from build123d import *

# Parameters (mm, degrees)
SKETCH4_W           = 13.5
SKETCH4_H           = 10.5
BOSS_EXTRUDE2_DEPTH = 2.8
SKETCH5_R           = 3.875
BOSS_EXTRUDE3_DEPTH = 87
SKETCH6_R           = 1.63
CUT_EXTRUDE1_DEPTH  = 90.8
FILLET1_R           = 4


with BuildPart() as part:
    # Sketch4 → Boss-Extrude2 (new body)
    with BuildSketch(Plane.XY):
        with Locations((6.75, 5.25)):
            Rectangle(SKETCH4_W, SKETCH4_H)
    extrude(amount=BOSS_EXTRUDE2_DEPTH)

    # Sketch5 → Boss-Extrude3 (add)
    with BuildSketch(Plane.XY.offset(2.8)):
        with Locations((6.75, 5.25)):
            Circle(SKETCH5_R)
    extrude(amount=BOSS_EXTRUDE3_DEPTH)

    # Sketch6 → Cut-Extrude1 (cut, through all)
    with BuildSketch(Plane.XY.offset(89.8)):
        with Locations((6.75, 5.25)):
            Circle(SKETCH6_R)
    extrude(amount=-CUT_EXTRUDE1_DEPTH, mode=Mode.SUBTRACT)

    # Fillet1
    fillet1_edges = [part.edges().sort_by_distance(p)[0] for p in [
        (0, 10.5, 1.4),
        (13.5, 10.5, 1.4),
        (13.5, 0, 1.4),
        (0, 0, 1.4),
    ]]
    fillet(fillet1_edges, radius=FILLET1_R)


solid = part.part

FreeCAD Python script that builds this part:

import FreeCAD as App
import Part
import Sketcher


def edges_at(feature, points):
    """Names of the edges that pass closest to the given points."""
    edges = feature.Shape.Edges
    near = lambda p: min(range(len(edges)), key=lambda i: edges[i].distToShape(Part.Vertex(*p))[0])
    return sorted({f"Edge{near(p) + 1}" for p in points})

doc = App.newDocument("Part")
params = doc.addObject("Spreadsheet::Sheet", "Params")
for row, (alias, value) in enumerate([
    ("sketch1_width", "13.5 mm"),
    ("sketch1_height", "10.5 mm"),
    ("pad1_length", "2.8 mm"),
    ("sketch2_diameter", "7.75 mm"),
    ("pad2_length", "87 mm"),
    ("sketch3_diameter", "3.26 mm"),
    ("fillet_radius", "4 mm"),
], start=1):
    params.set(f"A{row}", alias)
    params.set(f"B{row}", "=" + value)
    params.setAlias(f"B{row}", alias)

body = doc.addObject("PartDesign::Body", "Body")

# Sketch on XY plane
sketch1 = body.newObject("Sketcher::SketchObject", "Sketch")
sketch1.AttachmentSupport = (doc.getObject("XY_Plane"), [""])
sketch1.MapMode = "FlatFace"
sketch1.addGeometry([
    Part.LineSegment(App.Vector(0, 10, 0), App.Vector(0, 0, 0)),
    Part.LineSegment(App.Vector(0, 0, 0), App.Vector(14, 0, 0)),
    Part.LineSegment(App.Vector(14, 0, 0), App.Vector(14, 10, 0)),
    Part.LineSegment(App.Vector(14, 10, 0), App.Vector(0, 10, 0)),
], False)
sketch1.addConstraint([
    Sketcher.Constraint("Coincident", 0, 2, 1, 1),
    Sketcher.Constraint("Coincident", 1, 2, 2, 1),
    Sketcher.Constraint("Coincident", 2, 2, 3, 1),
    Sketcher.Constraint("Coincident", 3, 2, 0, 1),
    Sketcher.Constraint("Vertical", 0),
    Sketcher.Constraint("Horizontal", 1),
    Sketcher.Constraint("Vertical", 2),
    Sketcher.Constraint("Horizontal", 3),
    Sketcher.Constraint("Coincident", 0, 2, -1, 1),
    Sketcher.Constraint("DistanceX", 1, 1, 1, 2, 13.5),
    Sketcher.Constraint("DistanceY", 0, 2, 0, 1, 10.5),
])
sketch1.setExpression("Constraints[9]", "Params.sketch1_width")
sketch1.setExpression("Constraints[10]", "Params.sketch1_height")
pad1 = body.newObject("PartDesign::Pad", "Pad")
pad1.Profile = sketch1
pad1.setExpression("Length", "Params.pad1_length")

# Sketch on XY plane
sketch2 = body.newObject("Sketcher::SketchObject", "Sketch001")
sketch2.AttachmentSupport = (doc.getObject("XY_Plane"), [""])
sketch2.MapMode = "FlatFace"
sketch2.AttachmentOffset = App.Placement(App.Vector(0, 0, 2.8), App.Rotation())
sketch2.addGeometry(Part.Circle(App.Vector(6.8, 5.2, 0), App.Vector(0, 0, 1), 3.9), False)
sketch2.addConstraint([
    Sketcher.Constraint("Diameter", 0, 7.75),
    Sketcher.Constraint("DistanceX", -1, 1, 0, 3, 6.75),
    Sketcher.Constraint("DistanceY", -1, 1, 0, 3, 5.25),
])
sketch2.setExpression("Constraints[0]", "Params.sketch2_diameter")
pad2 = body.newObject("PartDesign::Pad", "Pad001")
pad2.Profile = sketch2
pad2.setExpression("Length", "Params.pad2_length")

# Sketch on XY plane
sketch3 = body.newObject("Sketcher::SketchObject", "Sketch002")
sketch3.AttachmentSupport = (doc.getObject("XY_Plane"), [""])
sketch3.MapMode = "FlatFace"
sketch3.AttachmentOffset = App.Placement(App.Vector(0, 0, 89.8), App.Rotation())
sketch3.addGeometry(Part.Circle(App.Vector(6.8, 5.2, 0), App.Vector(0, 0, 1), 1.6), False)
sketch3.addConstraint([
    Sketcher.Constraint("Diameter", 0, 3.26),
    Sketcher.Constraint("DistanceX", -1, 1, 0, 3, 6.75),
    Sketcher.Constraint("DistanceY", -1, 1, 0, 3, 5.25),
])
sketch3.setExpression("Constraints[0]", "Params.sketch3_diameter")
pocket1 = body.newObject("PartDesign::Pocket", "Pocket")
pocket1.Profile = sketch3
pocket1.Type = "ThroughAll"
doc.recompute()

fillet = body.newObject("PartDesign::Fillet", "Fillet")
fillet.Base = (pocket1, edges_at(pocket1, [
    (0, 10.5, 1.4),
    (13.5, 10.5, 1.4),
    (13.5, 0, 1.4),
    (0, 0, 1.4),
]))
fillet.setExpression("Radius", "Params.fillet_radius")

doc.recompute()
